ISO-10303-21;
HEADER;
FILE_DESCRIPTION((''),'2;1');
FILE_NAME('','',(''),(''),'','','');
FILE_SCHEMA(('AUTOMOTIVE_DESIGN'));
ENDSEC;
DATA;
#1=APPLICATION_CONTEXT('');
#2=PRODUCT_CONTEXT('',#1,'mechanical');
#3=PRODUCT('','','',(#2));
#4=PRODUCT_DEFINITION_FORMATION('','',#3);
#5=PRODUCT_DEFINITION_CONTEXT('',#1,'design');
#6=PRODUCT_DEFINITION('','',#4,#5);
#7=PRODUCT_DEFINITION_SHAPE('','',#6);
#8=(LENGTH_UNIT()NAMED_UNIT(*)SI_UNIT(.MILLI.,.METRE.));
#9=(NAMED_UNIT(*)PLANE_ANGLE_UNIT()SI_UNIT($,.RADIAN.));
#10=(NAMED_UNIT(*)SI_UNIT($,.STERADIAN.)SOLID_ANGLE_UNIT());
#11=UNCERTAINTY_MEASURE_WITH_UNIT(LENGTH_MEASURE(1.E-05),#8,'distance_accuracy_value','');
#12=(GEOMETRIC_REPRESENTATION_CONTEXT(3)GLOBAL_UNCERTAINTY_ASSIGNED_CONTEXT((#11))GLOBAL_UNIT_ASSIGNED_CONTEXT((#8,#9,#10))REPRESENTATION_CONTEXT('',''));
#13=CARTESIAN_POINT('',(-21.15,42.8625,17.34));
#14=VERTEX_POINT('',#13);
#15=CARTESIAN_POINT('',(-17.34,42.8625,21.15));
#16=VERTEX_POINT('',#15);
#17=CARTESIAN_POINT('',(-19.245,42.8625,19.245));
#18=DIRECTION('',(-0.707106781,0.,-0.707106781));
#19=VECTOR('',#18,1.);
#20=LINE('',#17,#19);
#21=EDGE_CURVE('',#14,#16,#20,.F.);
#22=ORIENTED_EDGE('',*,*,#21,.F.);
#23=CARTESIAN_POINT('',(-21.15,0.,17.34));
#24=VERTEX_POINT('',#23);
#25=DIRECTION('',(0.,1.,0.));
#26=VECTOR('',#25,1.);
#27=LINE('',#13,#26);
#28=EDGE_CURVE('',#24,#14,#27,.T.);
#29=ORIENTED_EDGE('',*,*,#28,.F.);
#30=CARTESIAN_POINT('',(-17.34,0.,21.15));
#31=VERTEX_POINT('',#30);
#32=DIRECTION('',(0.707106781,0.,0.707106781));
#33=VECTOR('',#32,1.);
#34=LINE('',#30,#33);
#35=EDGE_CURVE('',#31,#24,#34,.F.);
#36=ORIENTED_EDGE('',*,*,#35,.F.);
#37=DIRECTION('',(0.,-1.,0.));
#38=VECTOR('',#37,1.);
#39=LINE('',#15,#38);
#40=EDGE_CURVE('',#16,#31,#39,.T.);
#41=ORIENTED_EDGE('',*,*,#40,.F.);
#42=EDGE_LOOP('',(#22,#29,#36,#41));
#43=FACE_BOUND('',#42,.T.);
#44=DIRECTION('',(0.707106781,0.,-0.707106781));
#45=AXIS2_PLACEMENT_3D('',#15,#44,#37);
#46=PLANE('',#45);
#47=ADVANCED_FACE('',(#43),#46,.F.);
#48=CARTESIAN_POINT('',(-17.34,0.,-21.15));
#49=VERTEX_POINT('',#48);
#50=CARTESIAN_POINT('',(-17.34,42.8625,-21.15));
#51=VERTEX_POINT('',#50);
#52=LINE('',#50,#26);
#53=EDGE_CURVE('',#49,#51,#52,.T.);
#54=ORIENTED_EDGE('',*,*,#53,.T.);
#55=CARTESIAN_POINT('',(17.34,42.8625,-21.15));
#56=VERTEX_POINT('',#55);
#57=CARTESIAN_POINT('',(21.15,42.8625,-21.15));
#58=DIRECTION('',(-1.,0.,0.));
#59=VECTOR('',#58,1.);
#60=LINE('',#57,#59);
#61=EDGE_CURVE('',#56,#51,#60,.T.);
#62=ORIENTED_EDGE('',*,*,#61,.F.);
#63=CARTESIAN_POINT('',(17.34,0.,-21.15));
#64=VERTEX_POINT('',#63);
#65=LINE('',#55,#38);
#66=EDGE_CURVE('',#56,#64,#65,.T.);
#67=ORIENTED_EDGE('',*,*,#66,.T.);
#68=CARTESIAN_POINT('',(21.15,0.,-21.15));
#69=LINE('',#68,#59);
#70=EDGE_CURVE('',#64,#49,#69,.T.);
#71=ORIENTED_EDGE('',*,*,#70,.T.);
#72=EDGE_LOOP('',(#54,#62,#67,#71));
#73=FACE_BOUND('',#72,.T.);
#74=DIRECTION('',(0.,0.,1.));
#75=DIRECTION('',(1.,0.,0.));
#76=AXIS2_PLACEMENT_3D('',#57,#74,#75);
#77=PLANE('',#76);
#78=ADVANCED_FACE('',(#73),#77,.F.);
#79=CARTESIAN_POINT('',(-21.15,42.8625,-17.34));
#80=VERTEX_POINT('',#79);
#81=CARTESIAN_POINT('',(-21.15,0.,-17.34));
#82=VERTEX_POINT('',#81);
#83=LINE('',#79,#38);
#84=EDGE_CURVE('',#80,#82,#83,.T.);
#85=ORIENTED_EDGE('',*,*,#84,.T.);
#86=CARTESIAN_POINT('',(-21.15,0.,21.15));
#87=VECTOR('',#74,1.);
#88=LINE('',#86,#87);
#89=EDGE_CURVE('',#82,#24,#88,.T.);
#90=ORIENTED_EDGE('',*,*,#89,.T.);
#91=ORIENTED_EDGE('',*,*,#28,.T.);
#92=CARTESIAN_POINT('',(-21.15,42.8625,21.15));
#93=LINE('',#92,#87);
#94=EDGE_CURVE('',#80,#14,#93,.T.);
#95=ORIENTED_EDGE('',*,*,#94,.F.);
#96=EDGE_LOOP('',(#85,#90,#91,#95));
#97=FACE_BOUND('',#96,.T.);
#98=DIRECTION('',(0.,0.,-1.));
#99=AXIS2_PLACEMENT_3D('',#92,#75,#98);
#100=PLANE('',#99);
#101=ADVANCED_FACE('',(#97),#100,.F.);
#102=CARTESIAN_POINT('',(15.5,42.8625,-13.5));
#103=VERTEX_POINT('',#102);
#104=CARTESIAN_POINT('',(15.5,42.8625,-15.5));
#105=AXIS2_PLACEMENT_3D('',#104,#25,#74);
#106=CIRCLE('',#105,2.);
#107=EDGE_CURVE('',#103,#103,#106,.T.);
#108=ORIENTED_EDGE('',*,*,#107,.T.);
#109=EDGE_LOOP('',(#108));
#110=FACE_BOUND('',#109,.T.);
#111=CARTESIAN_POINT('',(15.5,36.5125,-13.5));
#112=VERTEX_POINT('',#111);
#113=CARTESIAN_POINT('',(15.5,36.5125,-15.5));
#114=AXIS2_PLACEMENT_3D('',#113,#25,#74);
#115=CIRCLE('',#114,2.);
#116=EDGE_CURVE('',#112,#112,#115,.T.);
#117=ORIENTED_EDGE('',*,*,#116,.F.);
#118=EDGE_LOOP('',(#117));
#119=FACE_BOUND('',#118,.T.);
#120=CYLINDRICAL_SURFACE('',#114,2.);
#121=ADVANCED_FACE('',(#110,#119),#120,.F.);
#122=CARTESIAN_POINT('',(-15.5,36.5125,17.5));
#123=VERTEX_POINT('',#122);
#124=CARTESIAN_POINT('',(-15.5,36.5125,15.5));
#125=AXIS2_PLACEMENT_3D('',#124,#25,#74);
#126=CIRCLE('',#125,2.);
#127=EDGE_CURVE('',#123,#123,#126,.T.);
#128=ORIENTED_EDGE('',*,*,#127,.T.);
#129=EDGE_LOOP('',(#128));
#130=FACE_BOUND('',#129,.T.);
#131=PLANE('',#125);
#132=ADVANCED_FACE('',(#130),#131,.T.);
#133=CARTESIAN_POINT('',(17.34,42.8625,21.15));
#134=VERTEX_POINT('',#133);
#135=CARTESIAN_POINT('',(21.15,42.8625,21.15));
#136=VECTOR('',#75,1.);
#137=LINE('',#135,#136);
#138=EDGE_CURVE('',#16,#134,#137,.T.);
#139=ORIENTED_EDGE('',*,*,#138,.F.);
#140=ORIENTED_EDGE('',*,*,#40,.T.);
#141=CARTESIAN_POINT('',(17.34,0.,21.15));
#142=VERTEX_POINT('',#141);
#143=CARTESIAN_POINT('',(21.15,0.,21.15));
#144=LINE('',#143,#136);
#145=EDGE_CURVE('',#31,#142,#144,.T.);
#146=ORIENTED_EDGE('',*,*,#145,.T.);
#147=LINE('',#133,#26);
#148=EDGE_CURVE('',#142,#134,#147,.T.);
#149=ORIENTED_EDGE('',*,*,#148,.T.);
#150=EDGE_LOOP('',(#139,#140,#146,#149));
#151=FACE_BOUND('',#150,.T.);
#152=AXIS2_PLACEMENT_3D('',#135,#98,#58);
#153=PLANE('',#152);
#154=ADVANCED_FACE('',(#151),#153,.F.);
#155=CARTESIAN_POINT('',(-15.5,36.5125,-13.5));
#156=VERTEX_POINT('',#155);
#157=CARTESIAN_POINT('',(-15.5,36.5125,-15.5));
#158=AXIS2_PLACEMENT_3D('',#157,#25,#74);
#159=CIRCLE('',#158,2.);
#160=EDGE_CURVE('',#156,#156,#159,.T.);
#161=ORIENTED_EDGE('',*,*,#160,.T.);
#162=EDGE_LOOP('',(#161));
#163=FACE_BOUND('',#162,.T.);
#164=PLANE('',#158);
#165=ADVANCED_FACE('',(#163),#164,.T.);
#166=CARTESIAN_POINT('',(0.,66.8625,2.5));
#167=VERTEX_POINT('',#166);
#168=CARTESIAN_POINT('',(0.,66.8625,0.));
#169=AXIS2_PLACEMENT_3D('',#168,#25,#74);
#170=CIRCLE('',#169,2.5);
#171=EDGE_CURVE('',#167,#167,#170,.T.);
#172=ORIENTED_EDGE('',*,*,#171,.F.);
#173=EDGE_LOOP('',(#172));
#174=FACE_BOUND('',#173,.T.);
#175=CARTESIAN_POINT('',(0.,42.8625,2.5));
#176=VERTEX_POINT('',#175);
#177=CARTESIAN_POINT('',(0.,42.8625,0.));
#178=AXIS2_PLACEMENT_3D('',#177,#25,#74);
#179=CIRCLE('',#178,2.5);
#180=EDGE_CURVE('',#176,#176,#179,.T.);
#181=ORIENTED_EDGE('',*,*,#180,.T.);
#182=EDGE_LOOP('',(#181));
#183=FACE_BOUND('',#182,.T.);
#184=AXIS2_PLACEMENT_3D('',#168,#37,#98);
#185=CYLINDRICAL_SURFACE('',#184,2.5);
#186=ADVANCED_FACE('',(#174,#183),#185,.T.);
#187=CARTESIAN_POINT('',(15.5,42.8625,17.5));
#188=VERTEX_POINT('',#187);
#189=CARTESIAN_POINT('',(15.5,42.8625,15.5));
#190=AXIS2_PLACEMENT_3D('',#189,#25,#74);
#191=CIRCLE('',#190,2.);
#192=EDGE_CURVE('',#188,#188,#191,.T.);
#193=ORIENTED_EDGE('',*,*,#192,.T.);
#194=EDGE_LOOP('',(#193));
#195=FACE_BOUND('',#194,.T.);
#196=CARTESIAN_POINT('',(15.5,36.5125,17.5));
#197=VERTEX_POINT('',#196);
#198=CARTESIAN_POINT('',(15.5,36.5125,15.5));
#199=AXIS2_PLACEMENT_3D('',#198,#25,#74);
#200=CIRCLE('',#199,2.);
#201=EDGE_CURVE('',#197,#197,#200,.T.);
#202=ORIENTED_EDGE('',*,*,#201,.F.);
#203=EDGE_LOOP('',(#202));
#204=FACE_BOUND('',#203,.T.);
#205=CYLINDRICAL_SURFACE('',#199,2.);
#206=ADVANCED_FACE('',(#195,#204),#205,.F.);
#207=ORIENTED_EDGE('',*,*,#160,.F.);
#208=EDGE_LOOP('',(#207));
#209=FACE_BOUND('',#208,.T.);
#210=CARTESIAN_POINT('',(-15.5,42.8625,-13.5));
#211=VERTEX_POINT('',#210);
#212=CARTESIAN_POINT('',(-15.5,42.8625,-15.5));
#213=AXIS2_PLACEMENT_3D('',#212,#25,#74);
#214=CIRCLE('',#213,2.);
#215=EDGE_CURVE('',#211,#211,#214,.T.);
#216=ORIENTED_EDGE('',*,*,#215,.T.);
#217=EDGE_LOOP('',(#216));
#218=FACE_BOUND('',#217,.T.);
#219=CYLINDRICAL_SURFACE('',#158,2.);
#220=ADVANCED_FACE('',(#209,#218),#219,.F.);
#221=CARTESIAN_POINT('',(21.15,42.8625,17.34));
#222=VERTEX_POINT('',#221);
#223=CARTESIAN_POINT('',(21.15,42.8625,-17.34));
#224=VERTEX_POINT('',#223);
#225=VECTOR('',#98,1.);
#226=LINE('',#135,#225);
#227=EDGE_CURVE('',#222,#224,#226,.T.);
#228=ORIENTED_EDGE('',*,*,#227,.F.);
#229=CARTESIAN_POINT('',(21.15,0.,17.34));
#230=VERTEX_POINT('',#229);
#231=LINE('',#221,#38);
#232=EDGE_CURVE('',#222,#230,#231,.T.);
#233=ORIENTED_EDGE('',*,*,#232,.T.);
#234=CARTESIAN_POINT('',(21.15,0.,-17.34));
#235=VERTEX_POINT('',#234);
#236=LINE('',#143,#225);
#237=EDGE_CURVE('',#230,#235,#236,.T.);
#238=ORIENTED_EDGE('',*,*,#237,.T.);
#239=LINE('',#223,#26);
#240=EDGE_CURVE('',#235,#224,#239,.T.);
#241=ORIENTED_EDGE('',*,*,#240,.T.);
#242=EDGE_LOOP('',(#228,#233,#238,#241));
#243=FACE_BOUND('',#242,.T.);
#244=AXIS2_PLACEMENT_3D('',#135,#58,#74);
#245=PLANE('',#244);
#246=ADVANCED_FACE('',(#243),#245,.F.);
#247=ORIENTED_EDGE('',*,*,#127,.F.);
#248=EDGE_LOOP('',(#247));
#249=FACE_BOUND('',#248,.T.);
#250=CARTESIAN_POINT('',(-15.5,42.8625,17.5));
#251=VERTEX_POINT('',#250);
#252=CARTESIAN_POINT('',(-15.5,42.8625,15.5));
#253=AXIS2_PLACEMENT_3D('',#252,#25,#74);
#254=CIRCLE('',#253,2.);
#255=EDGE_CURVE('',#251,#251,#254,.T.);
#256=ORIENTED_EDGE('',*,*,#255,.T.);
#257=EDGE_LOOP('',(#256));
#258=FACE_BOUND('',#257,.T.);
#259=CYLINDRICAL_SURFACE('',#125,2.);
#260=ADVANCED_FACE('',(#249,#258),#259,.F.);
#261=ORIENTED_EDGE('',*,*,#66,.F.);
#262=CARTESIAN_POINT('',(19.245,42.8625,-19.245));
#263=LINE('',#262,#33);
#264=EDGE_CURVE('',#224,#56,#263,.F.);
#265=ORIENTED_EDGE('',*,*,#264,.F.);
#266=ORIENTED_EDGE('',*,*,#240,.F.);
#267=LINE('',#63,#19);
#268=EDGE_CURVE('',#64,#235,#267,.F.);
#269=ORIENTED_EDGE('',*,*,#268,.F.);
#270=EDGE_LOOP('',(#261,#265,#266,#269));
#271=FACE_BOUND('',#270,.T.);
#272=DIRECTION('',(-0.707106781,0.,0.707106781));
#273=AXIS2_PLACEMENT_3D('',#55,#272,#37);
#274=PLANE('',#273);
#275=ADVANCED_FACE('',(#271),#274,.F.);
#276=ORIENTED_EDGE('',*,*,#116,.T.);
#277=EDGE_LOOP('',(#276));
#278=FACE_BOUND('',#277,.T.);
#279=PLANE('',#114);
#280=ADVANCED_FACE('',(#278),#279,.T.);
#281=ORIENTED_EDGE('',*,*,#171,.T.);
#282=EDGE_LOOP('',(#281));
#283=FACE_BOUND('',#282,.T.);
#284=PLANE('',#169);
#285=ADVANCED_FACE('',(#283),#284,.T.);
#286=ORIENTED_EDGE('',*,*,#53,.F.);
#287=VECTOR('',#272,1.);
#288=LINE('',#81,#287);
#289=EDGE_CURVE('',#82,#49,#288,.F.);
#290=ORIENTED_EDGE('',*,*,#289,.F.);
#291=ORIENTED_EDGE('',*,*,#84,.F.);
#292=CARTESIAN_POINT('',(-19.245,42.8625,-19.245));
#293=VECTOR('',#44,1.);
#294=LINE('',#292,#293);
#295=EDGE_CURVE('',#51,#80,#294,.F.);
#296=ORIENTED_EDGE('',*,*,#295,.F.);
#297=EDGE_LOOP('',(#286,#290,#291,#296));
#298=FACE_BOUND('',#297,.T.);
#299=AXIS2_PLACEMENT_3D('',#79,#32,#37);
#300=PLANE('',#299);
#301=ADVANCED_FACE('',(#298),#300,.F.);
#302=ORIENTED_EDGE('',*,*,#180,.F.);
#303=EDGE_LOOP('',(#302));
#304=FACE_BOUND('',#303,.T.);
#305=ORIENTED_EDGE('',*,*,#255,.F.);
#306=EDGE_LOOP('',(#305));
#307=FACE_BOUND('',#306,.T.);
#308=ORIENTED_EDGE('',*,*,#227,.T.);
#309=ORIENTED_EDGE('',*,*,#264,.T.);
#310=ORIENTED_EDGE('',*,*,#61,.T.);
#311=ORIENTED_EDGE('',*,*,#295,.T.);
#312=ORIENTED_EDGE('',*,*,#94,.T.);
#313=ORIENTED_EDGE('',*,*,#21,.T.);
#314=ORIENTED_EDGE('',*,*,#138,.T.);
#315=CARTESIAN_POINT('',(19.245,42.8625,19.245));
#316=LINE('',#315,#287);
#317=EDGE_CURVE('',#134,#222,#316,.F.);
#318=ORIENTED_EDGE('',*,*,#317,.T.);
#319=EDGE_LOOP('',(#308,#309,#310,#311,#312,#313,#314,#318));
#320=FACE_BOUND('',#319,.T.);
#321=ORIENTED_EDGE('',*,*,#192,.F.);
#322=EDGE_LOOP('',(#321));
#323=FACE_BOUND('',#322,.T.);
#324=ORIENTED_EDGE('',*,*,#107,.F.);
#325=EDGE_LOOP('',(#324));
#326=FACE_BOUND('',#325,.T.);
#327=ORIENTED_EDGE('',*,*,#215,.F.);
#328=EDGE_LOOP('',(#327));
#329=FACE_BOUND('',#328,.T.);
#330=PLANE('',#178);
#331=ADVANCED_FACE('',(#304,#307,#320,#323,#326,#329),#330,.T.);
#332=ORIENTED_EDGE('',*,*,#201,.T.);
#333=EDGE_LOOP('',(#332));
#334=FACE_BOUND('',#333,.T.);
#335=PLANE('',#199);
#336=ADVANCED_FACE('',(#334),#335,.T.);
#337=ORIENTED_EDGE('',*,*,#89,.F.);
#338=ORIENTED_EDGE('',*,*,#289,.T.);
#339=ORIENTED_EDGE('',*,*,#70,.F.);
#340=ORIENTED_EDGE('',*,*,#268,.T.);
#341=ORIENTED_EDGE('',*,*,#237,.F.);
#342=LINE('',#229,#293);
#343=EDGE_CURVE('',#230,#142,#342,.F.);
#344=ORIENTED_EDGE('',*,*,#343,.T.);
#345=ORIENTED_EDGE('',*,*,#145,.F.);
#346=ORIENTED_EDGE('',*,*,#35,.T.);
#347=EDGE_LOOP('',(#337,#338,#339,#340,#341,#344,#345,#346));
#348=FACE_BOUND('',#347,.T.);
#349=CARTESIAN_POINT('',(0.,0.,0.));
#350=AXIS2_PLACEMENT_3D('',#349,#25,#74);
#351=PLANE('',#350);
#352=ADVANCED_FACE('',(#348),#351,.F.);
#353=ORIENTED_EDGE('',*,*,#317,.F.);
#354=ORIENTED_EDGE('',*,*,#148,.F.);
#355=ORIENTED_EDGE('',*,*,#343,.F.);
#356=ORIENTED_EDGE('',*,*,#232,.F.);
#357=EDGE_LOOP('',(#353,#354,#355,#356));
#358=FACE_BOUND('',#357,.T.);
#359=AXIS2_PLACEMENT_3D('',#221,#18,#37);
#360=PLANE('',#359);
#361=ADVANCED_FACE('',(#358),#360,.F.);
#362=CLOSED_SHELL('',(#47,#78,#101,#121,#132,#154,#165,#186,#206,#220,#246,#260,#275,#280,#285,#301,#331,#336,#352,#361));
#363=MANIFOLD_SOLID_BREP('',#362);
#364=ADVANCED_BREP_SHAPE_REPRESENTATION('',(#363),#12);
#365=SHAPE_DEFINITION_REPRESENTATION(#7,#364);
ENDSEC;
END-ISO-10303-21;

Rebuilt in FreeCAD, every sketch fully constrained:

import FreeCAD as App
import Part
import Sketcher
Q = App.Units.Quantity


def edges_at(feature, points):
    """Names of the edges that pass closest to the given points."""
    edges = feature.Shape.Edges
    near = lambda p: min(range(len(edges)), key=lambda i: edges[i].distToShape(Part.Vertex(*p))[0])
    return sorted({f"Edge{near(p) + 1}" for p in points})


def add_polygon(sketch, points):
    """Adds a closed chain of lines whose ends are joined by coincident constraints."""
    first, n = sketch.GeometryCount, len(points)
    for a, b in zip(points, points[1:] + points[:1]):
        sketch.addGeometry(Part.LineSegment(App.Vector(*a, 0), App.Vector(*b, 0)), False)
    for i in range(n):
        sketch.addConstraint(Sketcher.Constraint("Coincident", first + i, 2, first + (i + 1) % n, 1))

doc = App.newDocument("Part")
body = doc.addObject("PartDesign::Body", "Body")

sketch1 = body.newObject("Sketcher::SketchObject", "Sketch")
sketch1.AttachmentSupport = (doc.getObject("XZ_Plane"), [""])
sketch1.MapMode = "FlatFace"
add_polygon(sketch1, [(-21, -21), (-21, 21), (21, 21), (21, -21)])
sketch1.addConstraint([
    Sketcher.Constraint("Vertical", 0),
    Sketcher.Constraint("Horizontal", 1),
    Sketcher.Constraint("Vertical", 2),
    Sketcher.Constraint("Horizontal", 3),
    Sketcher.Constraint("Symmetric", 0, 2, 2, 2, -1, 1),
    Sketcher.Constraint("Equal", 3, 0),
    Sketcher.Constraint("DistanceX", 1, 1, 1, 2, Q("42.3 mm")),
])
pad1 = body.newObject("PartDesign::Pad", "Pad")
pad1.Profile = sketch1
pad1.Length = 42.8625
pad1.Reversed = True

sketch2 = body.newObject("Sketcher::SketchObject", "Sketch001")
sketch2.AttachmentSupport = (doc.getObject("XZ_Plane"), [""])
sketch2.MapMode = "FlatFace"
sketch2.AttachmentOffset = App.Placement(App.Vector(0, 0, -42.8625), App.Rotation())
sketch2.addGeometry([
    Part.Circle(App.Vector(-15.5, 15.5, 0), App.Vector(0, 0, 1), 2),
    Part.Circle(App.Vector(-15.5, -15.5, 0), App.Vector(0, 0, 1), 2),
    Part.Circle(App.Vector(15.5, -15.5, 0), App.Vector(0, 0, 1), 2),
    Part.Circle(App.Vector(15.5, 15.5, 0), App.Vector(0, 0, 1), 2),
], False)
sketch2.addConstraint([
    Sketcher.Constraint("Equal", 0, 1),
    Sketcher.Constraint("Equal", 1, 2),
    Sketcher.Constraint("Equal", 2, 3),
    Sketcher.Constraint("Symmetric", 0, 3, 2, 3, -1, 1),
    Sketcher.Constraint("Symmetric", 1, 3, 3, 3, -1, 1),
    Sketcher.Constraint("Symmetric", 1, 3, 2, 3, -2),
    Sketcher.Constraint("Diameter", 0, Q("4 mm")),
    Sketcher.Constraint("DistanceY", 1, 3, 0, 3, Q("31 mm")),
    Sketcher.Constraint("DistanceX", 1, 3, 2, 3, Q("31 mm")),
])
pocket1 = body.newObject("PartDesign::Pocket", "Pocket")
pocket1.Profile = sketch2
pocket1.Length = 6.35
pocket1.Reversed = True
doc.recompute()

chamfer = body.newObject("PartDesign::Chamfer", "Chamfer")
chamfer.Base = (pocket1, edges_at(pocket1, [
    (-21.15, 21.431, -21.15),
    (21.15, 21.431, -21.15),
    (21.15, 21.431, 21.15),
    (-21.15, 21.431, 21.15),
]))
chamfer.Size = 3.81

sketch3 = body.newObject("Sketcher::SketchObject", "Sketch002")
sketch3.AttachmentSupport = (doc.getObject("XZ_Plane"), [""])
sketch3.MapMode = "FlatFace"
sketch3.AttachmentOffset = App.Placement(App.Vector(0, 0, -42.8625), App.Rotation())
sketch3.addGeometry(Part.Circle(App.Vector(0, 0, 0), App.Vector(0, 0, 1), 2.5), False)
sketch3.addConstraint([
    Sketcher.Constraint("Coincident", 0, 3, -1, 1),
    Sketcher.Constraint("Diameter", 0, Q("5 mm")),
])
pad2 = body.newObject("PartDesign::Pad", "Pad001")
pad2.Profile = sketch3
pad2.Length = 24
pad2.Reversed = True

doc.recompute()
